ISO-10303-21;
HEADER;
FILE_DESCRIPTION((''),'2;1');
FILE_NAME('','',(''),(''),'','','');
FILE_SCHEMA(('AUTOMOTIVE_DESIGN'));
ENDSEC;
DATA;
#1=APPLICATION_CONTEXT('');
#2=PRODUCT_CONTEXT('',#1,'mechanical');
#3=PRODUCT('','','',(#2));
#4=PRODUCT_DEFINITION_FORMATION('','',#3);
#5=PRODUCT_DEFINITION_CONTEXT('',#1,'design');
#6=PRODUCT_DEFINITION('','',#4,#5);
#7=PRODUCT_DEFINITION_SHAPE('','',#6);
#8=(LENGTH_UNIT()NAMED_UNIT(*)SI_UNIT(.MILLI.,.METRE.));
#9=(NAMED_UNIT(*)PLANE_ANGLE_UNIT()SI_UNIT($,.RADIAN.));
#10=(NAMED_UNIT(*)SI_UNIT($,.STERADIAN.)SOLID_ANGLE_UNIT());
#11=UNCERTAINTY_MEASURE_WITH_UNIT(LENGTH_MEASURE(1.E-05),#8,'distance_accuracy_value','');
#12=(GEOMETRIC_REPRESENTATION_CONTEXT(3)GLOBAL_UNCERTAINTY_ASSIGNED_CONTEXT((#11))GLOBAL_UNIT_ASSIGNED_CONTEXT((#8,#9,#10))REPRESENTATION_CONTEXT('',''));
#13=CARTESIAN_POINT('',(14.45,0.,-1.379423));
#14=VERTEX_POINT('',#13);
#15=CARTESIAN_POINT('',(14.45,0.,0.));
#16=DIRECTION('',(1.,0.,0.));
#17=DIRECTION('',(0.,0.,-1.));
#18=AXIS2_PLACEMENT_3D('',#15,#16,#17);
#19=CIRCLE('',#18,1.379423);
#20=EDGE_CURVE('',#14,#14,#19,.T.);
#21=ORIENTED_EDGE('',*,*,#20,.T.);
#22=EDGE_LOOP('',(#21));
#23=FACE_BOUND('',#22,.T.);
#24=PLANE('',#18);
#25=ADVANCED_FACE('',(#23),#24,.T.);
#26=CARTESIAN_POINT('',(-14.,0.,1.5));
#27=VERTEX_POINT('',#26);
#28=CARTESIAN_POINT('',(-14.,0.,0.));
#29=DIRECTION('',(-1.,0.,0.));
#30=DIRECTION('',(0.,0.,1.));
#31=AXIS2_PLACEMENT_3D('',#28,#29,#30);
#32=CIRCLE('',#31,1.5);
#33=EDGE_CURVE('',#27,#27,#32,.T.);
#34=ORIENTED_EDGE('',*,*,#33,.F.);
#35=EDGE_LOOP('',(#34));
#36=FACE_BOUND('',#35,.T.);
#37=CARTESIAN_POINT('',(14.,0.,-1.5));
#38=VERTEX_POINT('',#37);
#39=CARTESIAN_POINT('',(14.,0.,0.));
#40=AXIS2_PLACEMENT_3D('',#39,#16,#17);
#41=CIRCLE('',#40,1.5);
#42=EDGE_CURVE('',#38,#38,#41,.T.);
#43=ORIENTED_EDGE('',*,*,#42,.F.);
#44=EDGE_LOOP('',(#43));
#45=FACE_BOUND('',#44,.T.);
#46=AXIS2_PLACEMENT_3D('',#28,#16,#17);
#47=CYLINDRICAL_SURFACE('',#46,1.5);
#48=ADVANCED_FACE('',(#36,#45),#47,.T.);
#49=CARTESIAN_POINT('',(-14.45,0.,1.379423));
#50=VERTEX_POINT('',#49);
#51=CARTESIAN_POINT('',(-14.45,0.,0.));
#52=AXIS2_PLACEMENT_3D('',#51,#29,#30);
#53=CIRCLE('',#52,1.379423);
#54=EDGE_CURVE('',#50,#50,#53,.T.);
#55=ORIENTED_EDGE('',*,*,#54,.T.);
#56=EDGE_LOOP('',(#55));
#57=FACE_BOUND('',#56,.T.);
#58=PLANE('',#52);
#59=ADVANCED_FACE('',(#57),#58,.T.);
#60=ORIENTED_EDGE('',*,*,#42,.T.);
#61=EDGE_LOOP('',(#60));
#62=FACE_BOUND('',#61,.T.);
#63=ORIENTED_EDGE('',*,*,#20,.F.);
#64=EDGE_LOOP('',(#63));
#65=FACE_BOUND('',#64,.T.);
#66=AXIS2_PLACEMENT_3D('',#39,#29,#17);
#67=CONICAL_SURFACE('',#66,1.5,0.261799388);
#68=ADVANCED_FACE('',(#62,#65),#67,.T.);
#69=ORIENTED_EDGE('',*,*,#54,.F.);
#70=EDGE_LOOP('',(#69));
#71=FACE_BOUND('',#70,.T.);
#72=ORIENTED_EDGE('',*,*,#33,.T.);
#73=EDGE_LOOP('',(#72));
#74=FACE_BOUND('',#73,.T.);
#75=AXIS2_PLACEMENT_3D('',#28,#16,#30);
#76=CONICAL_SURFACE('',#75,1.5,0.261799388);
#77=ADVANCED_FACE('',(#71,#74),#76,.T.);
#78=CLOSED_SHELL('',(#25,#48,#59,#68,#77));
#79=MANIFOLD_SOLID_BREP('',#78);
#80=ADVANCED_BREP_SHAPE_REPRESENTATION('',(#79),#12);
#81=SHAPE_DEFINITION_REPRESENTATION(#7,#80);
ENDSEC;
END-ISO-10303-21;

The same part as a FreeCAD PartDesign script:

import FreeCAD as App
import Part
import Sketcher

V = App.Vector
Q = App.Units.Quantity

doc = App.newDocument("Part")
body = doc.addObject("PartDesign::Body", "Body")

sketch1 = doc.addObject("Sketcher::SketchObject", "Sketch")
body.addObject(sketch1)
sketch1.AttachmentSupport = (doc.YZ_Plane, [""])
sketch1.MapMode = "FlatFace"
sketch1.addGeometry(Part.Circle(V(0, 0, 0), V(0, 0, 1), 1.5), False)
sketch1.addConstraint([
    Sketcher.Constraint("Coincident", 0, 3, -1, 1),
    Sketcher.Constraint("Diameter", 0, Q("3 mm")),
])
pad1 = doc.addObject("PartDesign::Pad", "Pad")
body.addObject(pad1)
pad1.Profile = sketch1
pad1.Type = "TwoLengths"
pad1.Length = 14
pad1.Length2 = 14

sketch2 = doc.addObject("Sketcher::SketchObject", "Sketch001")
body.addObject(sketch2)
sketch2.AttachmentSupport = (doc.YZ_Plane, [""])
sketch2.MapMode = "FlatFace"
sketch2.AttachmentOffset = App.Placement(V(0, 0, 14), App.Rotation())
sketch2.addGeometry(Part.Circle(V(0, 0, 0), V(0, 0, 1), 1.5), False)
sketch2.addConstraint([
    Sketcher.Constraint("Coincident", 0, 3, -1, 1),
    Sketcher.Constraint("Diameter", 0, Q("3 mm")),
])
pad2 = doc.addObject("PartDesign::Pad", "Pad001")
body.addObject(pad2)
pad2.Profile = sketch2
pad2.Length = 0.45
pad2.TaperAngle = -15

sketch3 = doc.addObject("Sketcher::SketchObject", "Sketch002")
body.addObject(sketch3)
sketch3.AttachmentSupport = (doc.YZ_Plane, [""])
sketch3.MapMode = "FlatFace"
sketch3.AttachmentOffset = App.Placement(V(0, 0, -14), App.Rotation())
sketch3.addGeometry(Part.Circle(V(0, 0, 0), V(0, 0, 1), 1.5), False)
sketch3.addConstraint([
    Sketcher.Constraint("Coincident", 0, 3, -1, 1),
    Sketcher.Constraint("Diameter", 0, Q("3 mm")),
])
pad3 = doc.addObject("PartDesign::Pad", "Pad002")
body.addObject(pad3)
pad3.Profile = sketch3
pad3.Length = 0.45
pad3.Reversed = True
pad3.TaperAngle = -15

doc.recompute()
